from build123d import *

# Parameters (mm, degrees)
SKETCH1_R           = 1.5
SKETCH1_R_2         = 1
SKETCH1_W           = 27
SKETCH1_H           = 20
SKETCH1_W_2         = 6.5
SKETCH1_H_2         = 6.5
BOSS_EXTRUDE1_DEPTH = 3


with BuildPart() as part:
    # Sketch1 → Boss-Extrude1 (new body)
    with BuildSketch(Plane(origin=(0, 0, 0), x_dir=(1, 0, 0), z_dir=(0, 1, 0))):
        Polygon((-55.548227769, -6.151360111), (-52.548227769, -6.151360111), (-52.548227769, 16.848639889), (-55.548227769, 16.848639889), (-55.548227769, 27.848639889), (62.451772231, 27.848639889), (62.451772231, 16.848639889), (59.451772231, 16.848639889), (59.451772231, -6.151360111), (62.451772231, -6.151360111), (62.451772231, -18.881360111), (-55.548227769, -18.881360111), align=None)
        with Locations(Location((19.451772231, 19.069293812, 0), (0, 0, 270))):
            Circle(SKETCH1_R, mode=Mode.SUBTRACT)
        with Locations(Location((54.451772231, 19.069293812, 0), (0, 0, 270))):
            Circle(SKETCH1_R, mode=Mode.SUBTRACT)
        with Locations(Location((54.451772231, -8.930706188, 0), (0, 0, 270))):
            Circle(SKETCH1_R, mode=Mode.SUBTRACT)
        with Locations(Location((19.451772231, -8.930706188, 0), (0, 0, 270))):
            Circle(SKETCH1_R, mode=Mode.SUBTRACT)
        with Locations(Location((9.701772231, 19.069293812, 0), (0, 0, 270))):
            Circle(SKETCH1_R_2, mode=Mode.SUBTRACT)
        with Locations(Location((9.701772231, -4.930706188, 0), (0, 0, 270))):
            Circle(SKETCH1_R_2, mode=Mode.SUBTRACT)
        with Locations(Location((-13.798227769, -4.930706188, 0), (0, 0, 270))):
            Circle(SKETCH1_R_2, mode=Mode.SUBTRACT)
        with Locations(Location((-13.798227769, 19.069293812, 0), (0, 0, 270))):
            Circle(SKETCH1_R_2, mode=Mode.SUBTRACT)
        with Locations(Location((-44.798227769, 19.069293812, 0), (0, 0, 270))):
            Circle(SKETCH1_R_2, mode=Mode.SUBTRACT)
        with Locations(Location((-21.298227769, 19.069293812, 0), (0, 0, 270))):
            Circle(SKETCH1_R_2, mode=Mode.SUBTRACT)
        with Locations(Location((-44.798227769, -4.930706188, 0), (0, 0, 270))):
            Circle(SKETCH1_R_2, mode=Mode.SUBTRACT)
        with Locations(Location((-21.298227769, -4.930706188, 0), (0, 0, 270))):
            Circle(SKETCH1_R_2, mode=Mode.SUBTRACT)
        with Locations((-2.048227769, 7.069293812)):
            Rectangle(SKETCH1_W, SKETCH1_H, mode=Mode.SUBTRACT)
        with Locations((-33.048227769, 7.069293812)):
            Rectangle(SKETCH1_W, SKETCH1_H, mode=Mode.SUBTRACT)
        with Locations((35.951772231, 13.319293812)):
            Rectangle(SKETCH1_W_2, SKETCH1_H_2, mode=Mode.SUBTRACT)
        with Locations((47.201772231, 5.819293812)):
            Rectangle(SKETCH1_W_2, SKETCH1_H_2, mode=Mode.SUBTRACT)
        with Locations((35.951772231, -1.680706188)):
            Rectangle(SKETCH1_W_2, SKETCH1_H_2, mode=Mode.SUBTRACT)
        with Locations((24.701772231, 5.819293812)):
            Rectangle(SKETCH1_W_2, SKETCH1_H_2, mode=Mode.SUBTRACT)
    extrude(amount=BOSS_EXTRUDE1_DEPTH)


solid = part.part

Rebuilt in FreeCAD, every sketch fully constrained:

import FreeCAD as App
import Part
import Sketcher
Q = App.Units.Quantity


def add_polygon(sketch, points):
    """Adds a closed chain of lines whose ends are joined by coincident constraints."""
    first, n = sketch.GeometryCount, len(points)
    for a, b in zip(points, points[1:] + points[:1]):
        sketch.addGeometry(Part.LineSegment(App.Vector(*a, 0), App.Vector(*b, 0)), False)
    for i in range(n):
        sketch.addConstraint(Sketcher.Constraint("Coincident", first + i, 2, first + (i + 1) % n, 1))

doc = App.newDocument("Part")
body = doc.addObject("PartDesign::Body", "Body")

sketch1 = body.newObject("Sketcher::SketchObject", "Sketch")
sketch1.AttachmentSupport = (doc.getObject("XZ_Plane"), [""])
sketch1.MapMode = "FlatFace"
add_polygon(sketch1, [(-52.5, 6.2), (-55.5, 6.2), (-55.5, 18.9), (62.5, 18.9), (62.5, 6.2), (59.5, 6.2), (59.5, -16.8), (62.5, -16.8), (62.5, -27.8), (-55.5, -27.8), (-55.5, -16.8), (-52.5, -16.8)])
sketch1.addGeometry(Part.Circle(App.Vector(54.5, 8.9, 0), App.Vector(0, 0, 1), 1.5), False)
sketch1.addGeometry(Part.Circle(App.Vector(19.5, 8.9, 0), App.Vector(0, 0, 1), 1.5), False)
sketch1.addGeometry(Part.Circle(App.Vector(9.7, 4.9, 0), App.Vector(0, 0, 1), 1), False)
add_polygon(sketch1, [(32.7, 4.9), (32.7, -1.6), (39.2, -1.6), (39.2, 4.9)])
sketch1.addGeometry(Part.Circle(App.Vector(-13.8, 4.9, 0), App.Vector(0, 0, 1), 1), False)
sketch1.addGeometry(Part.Circle(App.Vector(-21.3, 4.9, 0), App.Vector(0, 0, 1), 1), False)
sketch1.addGeometry(Part.Circle(App.Vector(-44.8, 4.9, 0), App.Vector(0, 0, 1), 1), False)
add_polygon(sketch1, [(44, -2.6), (44, -9.1), (50.5, -9.1), (50.5, -2.6)])
add_polygon(sketch1, [(21.5, -2.6), (21.5, -9.1), (28, -9.1), (28, -2.6)])
add_polygon(sketch1, [(32.7, -10.1), (32.7, -16.6), (39.2, -16.6), (39.2, -10.1)])
sketch1.addGeometry(Part.Circle(App.Vector(54.5, -19.1, 0), App.Vector(0, 0, 1), 1.5), False)
sketch1.addGeometry(Part.Circle(App.Vector(19.5, -19.1, 0), App.Vector(0, 0, 1), 1.5), False)
sketch1.addGeometry(Part.Circle(App.Vector(9.7, -19.1, 0), App.Vector(0, 0, 1), 1), False)
add_polygon(sketch1, [(-15.5, 2.9), (-15.5, -17.1), (11.5, -17.1), (11.5, 2.9)])
add_polygon(sketch1, [(-46.5, 2.9), (-46.5, -17.1), (-19.5, -17.1), (-19.5, 2.9)])
sketch1.addGeometry(Part.Circle(App.Vector(-13.8, -19.1, 0), App.Vector(0, 0, 1), 1), False)
sketch1.addGeometry(Part.Circle(App.Vector(-21.3, -19.1, 0), App.Vector(0, 0, 1), 1), False)
sketch1.addGeometry(Part.Circle(App.Vector(-44.8, -19.1, 0), App.Vector(0, 0, 1), 1), False)
sketch1.addConstraint([
    Sketcher.Constraint("Horizontal", 0),
    Sketcher.Constraint("Vertical", 1),
    Sketcher.Constraint("Horizontal", 2),
    Sketcher.Constraint("Vertical", 3),
    Sketcher.Constraint("Horizontal", 4),
    Sketcher.Constraint("Vertical", 5),
    Sketcher.Constraint("Horizontal", 6),
    Sketcher.Constraint("Vertical", 7),
    Sketcher.Constraint("Horizontal", 8),
    Sketcher.Constraint("Vertical", 9),
    Sketcher.Constraint("Horizontal", 10),
    Sketcher.Constraint("Vertical", 11),
    Sketcher.Constraint("Vertical", 15),
    Sketcher.Constraint("Horizontal", 16),
    Sketcher.Constraint("Vertical", 17),
    Sketcher.Constraint("Horizontal", 18),
    Sketcher.Constraint("Vertical", 22),
    Sketcher.Constraint("Horizontal", 23),
    Sketcher.Constraint("Vertical", 24),
    Sketcher.Constraint("Horizontal", 25),
    Sketcher.Constraint("Vertical", 26),
    Sketcher.Constraint("Horizontal", 27),
    Sketcher.Constraint("Vertical", 28),
    Sketcher.Constraint("Horizontal", 29),
    Sketcher.Constraint("Vertical", 30),
    Sketcher.Constraint("Horizontal", 31),
    Sketcher.Constraint("Vertical", 32),
    Sketcher.Constraint("Horizontal", 33),
    Sketcher.Constraint("Vertical", 37),
    Sketcher.Constraint("Horizontal", 38),
    Sketcher.Constraint("Vertical", 39),
    Sketcher.Constraint("Horizontal", 40),
    Sketcher.Constraint("Vertical", 41),
    Sketcher.Constraint("Horizontal", 42),
    Sketcher.Constraint("Vertical", 43),
    Sketcher.Constraint("Horizontal", 44),
    Sketcher.Constraint("Equal", 12, 13),
    Sketcher.Constraint("Equal", 14, 19),
    Sketcher.Constraint("Equal", 19, 20),
    Sketcher.Constraint("Equal", 20, 21),
    Sketcher.Constraint("Equal", 13, 34),
    Sketcher.Constraint("Equal", 34, 35),
    Sketcher.Constraint("Equal", 21, 36),
    Sketcher.Constraint("Equal", 36, 45),
    Sketcher.Constraint("Equal", 45, 46),
    Sketcher.Constraint("Equal", 46, 47),
    Sketcher.Constraint("Horizontal", 12, 3, 13, 3),
    Sketcher.Constraint("Horizontal", 14, 3, 19, 3),
    Sketcher.Constraint("Horizontal", 19, 3, 20, 3),
    Sketcher.Constraint("Horizontal", 20, 3, 21, 3),
    Sketcher.Constraint("Horizontal", 34, 3, 35, 3),
    Sketcher.Constraint("Horizontal", 35, 3, 36, 3),
    Sketcher.Constraint("Horizontal", 36, 3, 45, 3),
    Sketcher.Constraint("Horizontal", 45, 3, 46, 3),
    Sketcher.Constraint("Horizontal", 46, 3, 47, 3),
    Sketcher.Constraint("Horizontal", 0, 2, 3, 2),
    Sketcher.Constraint("Horizontal", 6, 2, 9, 2),
    Sketcher.Constraint("Horizontal", 21, 3, 17, 2),
    Sketcher.Constraint("Horizontal", 23, 2, 26, 2),
    Sketcher.Constraint("Horizontal", 25, 2, 28, 2),
    Sketcher.Constraint("Horizontal", 38, 2, 41, 2),
    Sketcher.Constraint("Horizontal", 40, 2, 43, 2),
    Sketcher.Constraint("Vertical", 12, 3, 34, 3),
    Sketcher.Constraint("Vertical", 13, 3, 35, 3),
    Sketcher.Constraint("Vertical", 14, 3, 36, 3),
    Sketcher.Constraint("Vertical", 19, 3, 45, 3),
    Sketcher.Constraint("Vertical", 20, 3, 46, 3),
    Sketcher.Constraint("Vertical", 21, 3, 47, 3),
    Sketcher.Constraint("Vertical", 3, 2, 6, 2),
    Sketcher.Constraint("Vertical", 1, 2, 8, 2),
    Sketcher.Constraint("Vertical", 18, 2, 30, 2),
    Sketcher.Constraint("Vertical", 17, 2, 31, 2),
    Sketcher.Constraint("Equal", 0, 4),
    Sketcher.Constraint("Equal", 18, 23),
    Sketcher.Constraint("Equal", 25, 27),
    Sketcher.Constraint("Equal", 40, 42),
    Sketcher.Constraint("Equal", 33, 15),
    Sketcher.Constraint("Equal", 17, 22),
    Sketcher.Constraint("Equal", 28, 30),
    Sketcher.Constraint("Diameter", 12, Q("3 mm")),
    Sketcher.Constraint("Diameter", 14, Q("2 mm")),
    Sketcher.Constraint("DistanceX", 0, 2, 0, 1, Q("3 mm")),
    Sketcher.Constraint("DistanceX", 2, 1, 2, 2, Q("118 mm")),
    Sketcher.Constraint("DistanceX", 38, 1, 38, 2, Q("27 mm")),
    Sketcher.Constraint("DistanceY", 5, 2, 5, 1, Q("23 mm")),
    Sketcher.Constraint("DistanceY", 7, 2, 7, 1, Q("11 mm")),
    Sketcher.Constraint("DistanceY", 37, 2, 37, 1, Q("20 mm")),
    Sketcher.Constraint("DistanceX", 16, 1, 16, 2, Q("6.5 mm")),
    Sketcher.Constraint("DistanceX", 13, 3, 12, 3, Q("35 mm")),
    Sketcher.Constraint("DistanceY", 14, 3, 13, 3, Q("4 mm")),
    Sketcher.Constraint("DistanceX", 20, 3, 14, 3, Q("31 mm")),
    Sketcher.Constraint("DistanceX", 21, 3, 19, 3, Q("31 mm")),
    Sketcher.Constraint("DistanceY", 34, 3, 12, 3, Q("28 mm")),
    Sketcher.Constraint("DistanceX", 12, 3, 2, 2, Q("8 mm")),
    Sketcher.Constraint("DistanceX", 14, 3, 15, 2, Q("23 mm")),
    Sketcher.Constraint("DistanceY", 34, 3, 22, 2, Q("10 mm")),
    Sketcher.Constraint("DistanceX", 23, 2, 34, 3, Q("4 mm")),
    Sketcher.Constraint("DistanceX", 35, 3, 26, 2, Q("2 mm")),
    Sketcher.Constraint("DistanceY", 30, 2, 28, 2, Q("14 mm")),
    Sketcher.Constraint("DistanceY", 45, 3, 37, 2, Q("2 mm")),
    Sketcher.Constraint("DistanceX", 38, 2, 35, 3, Q("8 mm")),
    Sketcher.Constraint("DistanceX", 10, 2, 41, 2, Q("6 mm")),
    Sketcher.Constraint("DistanceY", 1, 1, 1, 2, Q("12.73 mm")),
    Sketcher.Constraint("DistanceX", 19, 3, 14, 3, Q("23.5 mm")),
    Sketcher.Constraint("DistanceX", 14, 3, 13, 3, Q("9.75 mm")),
    Sketcher.Constraint("DistanceY", -1, 1, 0, 2, Q("6.15136 mm")),
    Sketcher.Constraint("DistanceX", -1, 1, 12, 3, Q("54.451772 mm")),
    Sketcher.Constraint("DistanceY", -1, 1, 12, 3, Q("8.930706 mm")),
])
pad1 = body.newObject("PartDesign::Pad", "Pad")
pad1.Profile = sketch1
pad1.Length = 3
pad1.Reversed = True

doc.recompute()
